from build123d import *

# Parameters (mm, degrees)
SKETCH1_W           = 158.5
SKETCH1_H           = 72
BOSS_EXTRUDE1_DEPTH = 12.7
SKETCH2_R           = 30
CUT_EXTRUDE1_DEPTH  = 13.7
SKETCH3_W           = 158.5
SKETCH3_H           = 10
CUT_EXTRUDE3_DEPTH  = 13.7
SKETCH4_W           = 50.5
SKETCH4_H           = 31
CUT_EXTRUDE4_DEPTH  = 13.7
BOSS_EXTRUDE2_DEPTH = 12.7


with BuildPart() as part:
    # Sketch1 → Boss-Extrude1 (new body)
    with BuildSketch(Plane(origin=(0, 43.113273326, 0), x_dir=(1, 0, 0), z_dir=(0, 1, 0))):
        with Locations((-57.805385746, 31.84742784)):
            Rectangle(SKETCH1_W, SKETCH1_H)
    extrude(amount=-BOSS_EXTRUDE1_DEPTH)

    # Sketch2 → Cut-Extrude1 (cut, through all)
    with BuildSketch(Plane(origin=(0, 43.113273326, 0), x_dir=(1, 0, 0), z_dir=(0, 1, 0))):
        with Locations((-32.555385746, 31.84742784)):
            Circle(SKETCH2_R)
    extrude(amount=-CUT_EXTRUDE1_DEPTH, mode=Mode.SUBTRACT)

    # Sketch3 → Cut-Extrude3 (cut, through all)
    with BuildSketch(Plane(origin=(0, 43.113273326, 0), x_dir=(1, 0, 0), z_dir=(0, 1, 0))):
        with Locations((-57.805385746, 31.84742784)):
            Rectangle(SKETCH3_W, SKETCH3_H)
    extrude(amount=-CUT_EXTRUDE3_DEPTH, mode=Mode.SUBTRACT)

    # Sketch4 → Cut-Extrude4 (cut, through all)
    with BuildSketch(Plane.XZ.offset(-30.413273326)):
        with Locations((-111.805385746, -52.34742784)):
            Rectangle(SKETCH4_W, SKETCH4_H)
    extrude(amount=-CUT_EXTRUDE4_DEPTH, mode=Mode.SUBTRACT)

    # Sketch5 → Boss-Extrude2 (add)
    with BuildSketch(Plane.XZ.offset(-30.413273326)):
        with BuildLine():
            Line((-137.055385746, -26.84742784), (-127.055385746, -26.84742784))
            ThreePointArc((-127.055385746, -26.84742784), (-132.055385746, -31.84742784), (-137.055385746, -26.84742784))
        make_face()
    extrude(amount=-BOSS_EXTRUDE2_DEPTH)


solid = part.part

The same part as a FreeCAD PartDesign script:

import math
import FreeCAD as App
import Part
import Sketcher

V = App.Vector


def add_polygon(sketch, points):
    """Adds a closed chain of lines whose ends are joined by coincident constraints."""
    first, n = sketch.GeometryCount, len(points)
    for a, b in zip(points, points[1:] + points[:1]):
        sketch.addGeometry(Part.LineSegment(App.Vector(*a, 0), App.Vector(*b, 0)), False)
    for i in range(n):
        sketch.addConstraint(Sketcher.Constraint("Coincident", first + i, 2, first + (i + 1) % n, 1))

doc = App.newDocument("Part")
body = doc.addObject("PartDesign::Body", "Body")
body.AllowCompound = True

sketch1 = doc.addObject("Sketcher::SketchObject", "Sketch")
body.addObject(sketch1)
sketch1.AttachmentSupport = (doc.XZ_Plane, [""])
sketch1.MapMode = "FlatFace"
sketch1.AttachmentOffset = App.Placement(V(0, 0, -43.113273), App.Rotation())
add_polygon(sketch1, [(-137.055386, -67.847428), (-137.055386, 4.152572), (21.444614, 4.152572), (21.444614, -67.847428)])
sketch1.addConstraint([
    Sketcher.Constraint("Vertical", 0),
    Sketcher.Constraint("Horizontal", 1),
    Sketcher.Constraint("Vertical", 2),
    Sketcher.Constraint("Horizontal", 3),
    Sketcher.Constraint("DistanceY", 0, 1, 0, 2, 72.0),
    Sketcher.Constraint("DistanceX", 1, 1, 1, 2, 158.5),
    Sketcher.Constraint("DistanceX", 0, 2, -1, 1, 137.055386),
    Sketcher.Constraint("DistanceY", -1, 1, 0, 2, 4.152572),
])
pad1 = doc.addObject("PartDesign::Pad", "Pad")
body.addObject(pad1)
pad1.Profile = sketch1
pad1.Length = 12.7

sketch2 = doc.addObject("Sketcher::SketchObject", "Sketch001")
body.addObject(sketch2)
sketch2.AttachmentSupport = (doc.XZ_Plane, [""])
sketch2.MapMode = "FlatFace"
sketch2.AttachmentOffset = App.Placement(V(0, 0, -43.113273), App.Rotation())
sketch2.addGeometry(Part.Circle(V(-32.555386, -31.847428, 0), V(0, 0, 1), 30), False)
sketch2.addConstraint([
    Sketcher.Constraint("Diameter", 0, 60.0),
    Sketcher.Constraint("DistanceX", 0, 3, -1, 1, 32.555386),
    Sketcher.Constraint("DistanceY", 0, 3, -1, 1, 31.847428),
])
pocket1 = doc.addObject("PartDesign::Pocket", "Pocket")
body.addObject(pocket1)
pocket1.Profile = sketch2
pocket1.Type = "ThroughAll"
pocket1.Reversed = True

sketch3 = doc.addObject("Sketcher::SketchObject", "Sketch002")
body.addObject(sketch3)
sketch3.AttachmentSupport = (doc.XZ_Plane, [""])
sketch3.MapMode = "FlatFace"
sketch3.AttachmentOffset = App.Placement(V(0, 0, -43.113273), App.Rotation())
add_polygon(sketch3, [(-137.055386, -36.847428), (-137.055386, -26.847428), (21.444614, -26.847428), (21.444614, -36.847428)])
sketch3.addConstraint([
    Sketcher.Constraint("Vertical", 0),
    Sketcher.Constraint("Horizontal", 1),
    Sketcher.Constraint("Vertical", 2),
    Sketcher.Constraint("Horizontal", 3),
    Sketcher.Constraint("DistanceY", 0, 1, 0, 2, 10.0),
    Sketcher.Constraint("DistanceX", 1, 1, 1, 2, 158.5),
    Sketcher.Constraint("DistanceX", 0, 2, -1, 1, 137.055386),
    Sketcher.Constraint("DistanceY", 0, 2, -1, 1, 26.847428),
])
pocket2 = doc.addObject("PartDesign::Pocket", "Pocket001")
body.addObject(pocket2)
pocket2.Profile = sketch3
pocket2.Type = "ThroughAll"
pocket2.Reversed = True

sketch4 = doc.addObject("Sketcher::SketchObject", "Sketch003")
body.addObject(sketch4)
sketch4.AttachmentSupport = (doc.XZ_Plane, [""])
sketch4.MapMode = "FlatFace"
sketch4.AttachmentOffset = App.Placement(V(0, 0, -30.413273), App.Rotation())
add_polygon(sketch4, [(-137.055386, -36.847428), (-137.055386, -67.847428), (-86.555386, -67.847428), (-86.555386, -36.847428)])
sketch4.addConstraint([
    Sketcher.Constraint("Vertical", 0),
    Sketcher.Constraint("Horizontal", 1),
    Sketcher.Constraint("Vertical", 2),
    Sketcher.Constraint("Horizontal", 3),
    Sketcher.Constraint("DistanceY", 0, 2, 0, 1, 31.0),
    Sketcher.Constraint("DistanceX", 1, 1, 1, 2, 50.5),
    Sketcher.Constraint("DistanceX", 0, 2, -1, 1, 137.055386),
    Sketcher.Constraint("DistanceY", 0, 2, -1, 1, 67.847428),
])
pocket3 = doc.addObject("PartDesign::Pocket", "Pocket002")
body.addObject(pocket3)
pocket3.Profile = sketch4
pocket3.Type = "ThroughAll"

sketch5 = doc.addObject("Sketcher::SketchObject", "Sketch004")
body.addObject(sketch5)
sketch5.AttachmentSupport = (doc.XZ_Plane, [""])
sketch5.MapMode = "FlatFace"
sketch5.AttachmentOffset = App.Placement(V(0, 0, -30.413273), App.Rotation())
sketch5.addGeometry([
    Part.LineSegment(V(-127.055386, -26.847428, 0), V(-137.055386, -26.847428, 0)),
    Part.ArcOfCircle(Part.Circle(V(-132.055386, -26.847428, 0), V(0, 0, 1), 5), math.radians(180), math.radians(360)),
], False)
sketch5.addConstraint([
    Sketcher.Constraint("Coincident", 0, 1, 1, 2),
    Sketcher.Constraint("Coincident", 1, 1, 0, 2),
    Sketcher.Constraint("Horizontal", 0),
    Sketcher.Constraint("Horizontal", 1, 3, 0, 1),
    Sketcher.Constraint("Radius", 1, 5.0),
    Sketcher.Constraint("DistanceX", 1, 3, -1, 1, 132.055386),
    Sketcher.Constraint("DistanceY", 1, 3, -1, 1, 26.847428),
])
pad2 = doc.addObject("PartDesign::Pad", "Pad001")
body.addObject(pad2)
pad2.Profile = sketch5
pad2.Length = 12.7
pad2.Reversed = True

doc.recompute()
